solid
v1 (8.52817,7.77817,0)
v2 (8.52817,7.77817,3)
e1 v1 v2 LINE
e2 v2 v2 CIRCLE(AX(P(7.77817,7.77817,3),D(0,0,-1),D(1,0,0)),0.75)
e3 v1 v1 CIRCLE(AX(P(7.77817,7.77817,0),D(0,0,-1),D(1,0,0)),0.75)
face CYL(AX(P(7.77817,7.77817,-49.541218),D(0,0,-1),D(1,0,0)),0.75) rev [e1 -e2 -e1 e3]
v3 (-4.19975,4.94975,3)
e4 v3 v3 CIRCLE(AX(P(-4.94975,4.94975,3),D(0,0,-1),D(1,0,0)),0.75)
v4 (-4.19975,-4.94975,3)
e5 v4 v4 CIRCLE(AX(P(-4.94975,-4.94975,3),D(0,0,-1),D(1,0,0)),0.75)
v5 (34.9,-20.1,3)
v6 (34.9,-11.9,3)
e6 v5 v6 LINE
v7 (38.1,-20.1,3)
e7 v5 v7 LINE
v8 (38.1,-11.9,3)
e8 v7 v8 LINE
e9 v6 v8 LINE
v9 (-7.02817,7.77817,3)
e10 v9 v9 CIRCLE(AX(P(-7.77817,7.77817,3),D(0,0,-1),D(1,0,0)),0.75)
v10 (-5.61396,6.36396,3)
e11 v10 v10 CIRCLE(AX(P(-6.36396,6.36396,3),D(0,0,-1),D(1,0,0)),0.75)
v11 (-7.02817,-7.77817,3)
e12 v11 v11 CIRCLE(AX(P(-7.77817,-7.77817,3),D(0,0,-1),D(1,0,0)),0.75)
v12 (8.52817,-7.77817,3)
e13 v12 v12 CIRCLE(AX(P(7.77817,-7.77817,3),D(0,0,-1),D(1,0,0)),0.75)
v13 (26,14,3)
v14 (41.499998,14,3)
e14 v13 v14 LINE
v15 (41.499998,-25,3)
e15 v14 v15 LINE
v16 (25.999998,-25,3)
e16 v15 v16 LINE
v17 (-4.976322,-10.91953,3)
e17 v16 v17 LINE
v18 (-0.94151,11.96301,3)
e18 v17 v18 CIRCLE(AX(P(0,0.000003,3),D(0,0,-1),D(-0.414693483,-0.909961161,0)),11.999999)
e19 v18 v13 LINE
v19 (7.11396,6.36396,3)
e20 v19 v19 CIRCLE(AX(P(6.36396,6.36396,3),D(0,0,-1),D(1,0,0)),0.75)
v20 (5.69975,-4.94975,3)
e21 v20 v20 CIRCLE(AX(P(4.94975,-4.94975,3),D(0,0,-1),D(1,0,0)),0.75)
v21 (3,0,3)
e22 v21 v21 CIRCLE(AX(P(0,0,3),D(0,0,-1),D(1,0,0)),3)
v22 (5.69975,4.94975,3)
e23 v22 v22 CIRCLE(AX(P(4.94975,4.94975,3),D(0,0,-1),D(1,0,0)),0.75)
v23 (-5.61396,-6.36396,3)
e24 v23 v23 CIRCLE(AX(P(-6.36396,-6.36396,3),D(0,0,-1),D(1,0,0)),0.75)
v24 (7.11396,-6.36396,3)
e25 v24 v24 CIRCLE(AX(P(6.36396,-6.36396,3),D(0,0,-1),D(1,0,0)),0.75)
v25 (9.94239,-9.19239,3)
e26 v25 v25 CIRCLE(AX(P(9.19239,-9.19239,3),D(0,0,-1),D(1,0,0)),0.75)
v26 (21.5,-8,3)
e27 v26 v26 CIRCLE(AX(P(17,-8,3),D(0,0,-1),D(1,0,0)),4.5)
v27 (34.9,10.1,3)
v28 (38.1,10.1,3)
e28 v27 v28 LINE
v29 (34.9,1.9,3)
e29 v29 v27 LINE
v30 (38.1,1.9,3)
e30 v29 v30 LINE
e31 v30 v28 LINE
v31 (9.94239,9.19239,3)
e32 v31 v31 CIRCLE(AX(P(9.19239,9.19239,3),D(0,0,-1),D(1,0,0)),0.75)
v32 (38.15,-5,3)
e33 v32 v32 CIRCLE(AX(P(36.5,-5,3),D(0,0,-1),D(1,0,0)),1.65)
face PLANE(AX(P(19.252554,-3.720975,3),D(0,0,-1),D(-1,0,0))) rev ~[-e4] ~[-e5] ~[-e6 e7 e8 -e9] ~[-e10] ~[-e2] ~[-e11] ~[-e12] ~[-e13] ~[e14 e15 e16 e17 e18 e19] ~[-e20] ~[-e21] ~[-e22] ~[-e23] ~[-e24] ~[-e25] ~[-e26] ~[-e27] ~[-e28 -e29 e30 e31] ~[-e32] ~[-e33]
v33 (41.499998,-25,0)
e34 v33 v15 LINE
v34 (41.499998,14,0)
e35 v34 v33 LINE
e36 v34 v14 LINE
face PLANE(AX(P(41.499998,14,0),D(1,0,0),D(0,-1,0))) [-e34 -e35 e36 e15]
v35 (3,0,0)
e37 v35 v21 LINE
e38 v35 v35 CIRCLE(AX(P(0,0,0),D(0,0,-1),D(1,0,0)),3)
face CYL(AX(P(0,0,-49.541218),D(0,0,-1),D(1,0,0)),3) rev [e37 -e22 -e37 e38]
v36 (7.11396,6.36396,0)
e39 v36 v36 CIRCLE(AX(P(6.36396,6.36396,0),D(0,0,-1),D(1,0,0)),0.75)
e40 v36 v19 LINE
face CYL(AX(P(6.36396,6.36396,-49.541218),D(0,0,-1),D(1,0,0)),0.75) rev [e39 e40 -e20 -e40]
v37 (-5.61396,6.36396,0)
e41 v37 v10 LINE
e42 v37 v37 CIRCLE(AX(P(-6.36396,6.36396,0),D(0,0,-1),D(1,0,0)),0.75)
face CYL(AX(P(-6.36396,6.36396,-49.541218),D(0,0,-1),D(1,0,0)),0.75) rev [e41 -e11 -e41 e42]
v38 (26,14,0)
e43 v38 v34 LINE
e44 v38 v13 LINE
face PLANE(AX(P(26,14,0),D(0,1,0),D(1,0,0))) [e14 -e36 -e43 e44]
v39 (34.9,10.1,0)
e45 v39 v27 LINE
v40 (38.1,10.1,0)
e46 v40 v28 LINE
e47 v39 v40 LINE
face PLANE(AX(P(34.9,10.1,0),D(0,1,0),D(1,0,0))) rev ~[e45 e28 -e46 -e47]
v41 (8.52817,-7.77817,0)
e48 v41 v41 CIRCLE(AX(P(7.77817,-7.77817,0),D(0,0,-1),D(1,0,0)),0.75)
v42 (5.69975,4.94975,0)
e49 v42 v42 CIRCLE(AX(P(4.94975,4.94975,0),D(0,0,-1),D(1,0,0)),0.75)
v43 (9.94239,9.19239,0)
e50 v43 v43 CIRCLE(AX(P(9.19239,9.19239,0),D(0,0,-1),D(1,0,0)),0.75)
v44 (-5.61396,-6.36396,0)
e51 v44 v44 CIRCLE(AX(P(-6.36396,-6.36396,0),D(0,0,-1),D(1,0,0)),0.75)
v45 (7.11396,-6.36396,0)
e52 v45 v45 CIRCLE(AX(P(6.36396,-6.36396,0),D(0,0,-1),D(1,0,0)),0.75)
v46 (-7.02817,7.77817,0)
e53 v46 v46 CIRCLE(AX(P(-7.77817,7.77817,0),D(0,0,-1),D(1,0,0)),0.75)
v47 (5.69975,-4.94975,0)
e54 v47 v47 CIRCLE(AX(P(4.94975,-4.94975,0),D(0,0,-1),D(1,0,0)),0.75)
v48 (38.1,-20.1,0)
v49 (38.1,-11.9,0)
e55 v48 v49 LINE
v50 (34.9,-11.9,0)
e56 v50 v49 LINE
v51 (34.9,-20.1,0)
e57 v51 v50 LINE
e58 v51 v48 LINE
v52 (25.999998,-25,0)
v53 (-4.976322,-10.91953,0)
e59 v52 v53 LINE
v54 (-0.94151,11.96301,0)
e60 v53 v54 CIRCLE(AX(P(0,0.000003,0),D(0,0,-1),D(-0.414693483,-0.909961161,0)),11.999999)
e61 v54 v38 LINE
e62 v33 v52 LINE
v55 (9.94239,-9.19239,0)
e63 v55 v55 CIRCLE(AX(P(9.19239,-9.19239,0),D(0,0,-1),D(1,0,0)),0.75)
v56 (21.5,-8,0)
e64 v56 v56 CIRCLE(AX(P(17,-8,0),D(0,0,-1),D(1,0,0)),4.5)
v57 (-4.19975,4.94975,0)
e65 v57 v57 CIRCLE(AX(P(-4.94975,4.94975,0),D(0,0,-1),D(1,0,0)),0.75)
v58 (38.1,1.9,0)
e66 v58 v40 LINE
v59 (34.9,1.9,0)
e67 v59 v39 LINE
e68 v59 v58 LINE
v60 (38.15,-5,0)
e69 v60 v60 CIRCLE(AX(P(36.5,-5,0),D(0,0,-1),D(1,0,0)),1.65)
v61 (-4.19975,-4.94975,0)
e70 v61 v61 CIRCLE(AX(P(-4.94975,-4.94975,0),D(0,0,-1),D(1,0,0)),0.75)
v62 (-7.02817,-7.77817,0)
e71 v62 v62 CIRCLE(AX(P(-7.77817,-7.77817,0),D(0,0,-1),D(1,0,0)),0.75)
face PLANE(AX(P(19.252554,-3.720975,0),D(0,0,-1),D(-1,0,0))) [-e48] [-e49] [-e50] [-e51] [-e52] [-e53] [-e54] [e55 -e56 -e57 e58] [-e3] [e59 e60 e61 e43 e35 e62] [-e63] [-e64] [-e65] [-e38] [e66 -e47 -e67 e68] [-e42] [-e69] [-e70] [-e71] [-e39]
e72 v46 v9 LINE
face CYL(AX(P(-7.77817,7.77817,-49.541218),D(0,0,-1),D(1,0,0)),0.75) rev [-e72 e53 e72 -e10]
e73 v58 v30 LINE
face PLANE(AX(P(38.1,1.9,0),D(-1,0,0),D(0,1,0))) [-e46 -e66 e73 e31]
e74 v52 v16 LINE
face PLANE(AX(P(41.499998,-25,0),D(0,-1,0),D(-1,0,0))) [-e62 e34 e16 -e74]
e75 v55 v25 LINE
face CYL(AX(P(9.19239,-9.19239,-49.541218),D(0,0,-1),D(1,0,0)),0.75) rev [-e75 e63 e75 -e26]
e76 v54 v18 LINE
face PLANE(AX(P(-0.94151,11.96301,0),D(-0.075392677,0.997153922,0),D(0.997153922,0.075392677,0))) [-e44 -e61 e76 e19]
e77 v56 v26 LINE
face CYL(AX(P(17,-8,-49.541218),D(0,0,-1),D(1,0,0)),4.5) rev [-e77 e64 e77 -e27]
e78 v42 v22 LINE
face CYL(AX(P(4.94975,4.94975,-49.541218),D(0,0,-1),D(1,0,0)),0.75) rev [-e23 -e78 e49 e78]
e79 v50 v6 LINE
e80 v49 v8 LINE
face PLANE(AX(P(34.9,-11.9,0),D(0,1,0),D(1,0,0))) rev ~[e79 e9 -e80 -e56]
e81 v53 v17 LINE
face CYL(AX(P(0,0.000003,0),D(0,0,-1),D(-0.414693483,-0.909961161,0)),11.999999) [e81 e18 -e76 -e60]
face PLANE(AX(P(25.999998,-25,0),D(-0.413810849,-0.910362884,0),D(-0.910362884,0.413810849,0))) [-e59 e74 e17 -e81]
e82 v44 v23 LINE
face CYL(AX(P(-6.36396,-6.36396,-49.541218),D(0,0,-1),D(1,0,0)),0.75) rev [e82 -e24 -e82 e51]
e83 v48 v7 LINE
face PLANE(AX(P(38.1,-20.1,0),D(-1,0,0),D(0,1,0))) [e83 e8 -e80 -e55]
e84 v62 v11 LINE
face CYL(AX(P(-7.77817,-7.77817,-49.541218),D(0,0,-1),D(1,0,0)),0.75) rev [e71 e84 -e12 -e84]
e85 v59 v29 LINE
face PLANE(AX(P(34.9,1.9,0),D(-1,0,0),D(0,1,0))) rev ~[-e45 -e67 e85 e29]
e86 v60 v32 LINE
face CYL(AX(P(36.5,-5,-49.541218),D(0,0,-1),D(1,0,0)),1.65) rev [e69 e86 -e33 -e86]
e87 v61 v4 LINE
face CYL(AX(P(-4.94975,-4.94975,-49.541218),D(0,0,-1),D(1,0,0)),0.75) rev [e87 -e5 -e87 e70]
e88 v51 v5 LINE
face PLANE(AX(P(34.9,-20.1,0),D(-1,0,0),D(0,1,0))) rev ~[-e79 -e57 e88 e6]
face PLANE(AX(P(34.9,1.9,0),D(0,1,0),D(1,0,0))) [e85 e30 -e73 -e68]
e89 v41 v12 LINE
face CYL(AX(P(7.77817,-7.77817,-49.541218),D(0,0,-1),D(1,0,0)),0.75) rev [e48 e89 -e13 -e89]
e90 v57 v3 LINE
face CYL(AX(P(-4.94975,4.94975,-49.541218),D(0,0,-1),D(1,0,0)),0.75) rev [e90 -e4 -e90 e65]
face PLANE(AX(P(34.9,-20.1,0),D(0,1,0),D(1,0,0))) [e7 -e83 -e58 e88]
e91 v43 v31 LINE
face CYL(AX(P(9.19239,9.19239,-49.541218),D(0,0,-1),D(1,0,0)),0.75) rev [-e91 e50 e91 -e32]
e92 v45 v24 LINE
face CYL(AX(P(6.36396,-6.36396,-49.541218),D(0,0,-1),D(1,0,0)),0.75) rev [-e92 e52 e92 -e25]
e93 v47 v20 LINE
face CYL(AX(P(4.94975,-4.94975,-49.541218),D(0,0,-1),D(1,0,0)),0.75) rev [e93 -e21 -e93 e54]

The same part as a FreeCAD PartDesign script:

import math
import FreeCAD as App
import Part
import Sketcher

V = App.Vector

doc = App.newDocument("Part")
params = doc.addObject("Spreadsheet::Sheet", "Params")
for row, (alias, value) in enumerate([
    ("sketch1_radius", "11.999999 mm"),
    ("sketch1_height", "39 mm"),
    ("sketch1_width", "15.5 mm"),
    ("sketch1_width2", "3.2 mm"),
    ("sketch1_height2", "8.2 mm"),
    ("pad1_length", "3 mm"),
    ("sketch2_diameter", "9 mm"),
    ("sketch2_diameter2", "6 mm"),
    ("sketch2_diameter3", "1.5 mm"),
    ("sketch2_diameter4", "3.3 mm"),
], start=1):
    params.set(f"A{row}", alias)
    params.set(f"B{row}", "=" + value)
    params.setAlias(f"B{row}", alias)

body = doc.addObject("PartDesign::Body", "Body")

# Sketch on XY plane
sketch1 = body.newObject("Sketcher::SketchObject", "Sketch")
sketch1.AttachmentSupport = (doc.getObject("XY_Plane"), [""])
sketch1.MapMode = "FlatFace"
sketch1.addGeometry([
    Part.LineSegment(V(25.999998, -25, 0), V(41.499998, -25, 0)),  # 0
    Part.LineSegment(V(41.499998, -25, 0), V(41.499998, 14, 0)),  # 1
    Part.LineSegment(V(41.499998, 14, 0), V(26, 14, 0)),  # 2
    Part.LineSegment(V(26, 14, 0), V(-0.94151, 11.96301, 0)),  # 3
    Part.ArcOfCircle(Part.Circle(V(0, 0.000003, 0), V(0, 0, 1), 11.999999), math.radians(94.500003), math.radians(245.499985)),  # 4
    Part.LineSegment(V(-4.976322, -10.91953, 0), V(25.999998, -25, 0)),  # 5
    Part.LineSegment(V(34.9, -20.1, 0), V(34.9, -11.9, 0)),  # 6
    Part.LineSegment(V(34.9, -11.9, 0), V(38.1, -11.9, 0)),  # 7
    Part.LineSegment(V(38.1, -11.9, 0), V(38.1, -20.1, 0)),  # 8
    Part.LineSegment(V(38.1, -20.1, 0), V(34.9, -20.1, 0)),  # 9
    Part.LineSegment(V(34.9, 1.9, 0), V(34.9, 10.1, 0)),  # 10
    Part.LineSegment(V(34.9, 10.1, 0), V(38.1, 10.1, 0)),  # 11
    Part.LineSegment(V(38.1, 10.1, 0), V(38.1, 1.9, 0)),  # 12
    Part.LineSegment(V(38.1, 1.9, 0), V(34.9, 1.9, 0)),  # 13
], False)
sketch1.addConstraint([
    Sketcher.Constraint("Coincident", 0, 2, 1, 1),
    Sketcher.Constraint("Coincident", 1, 2, 2, 1),
    Sketcher.Constraint("Coincident", 2, 2, 3, 1),
    Sketcher.Constraint("Coincident", 3, 2, 4, 1),
    Sketcher.Constraint("Coincident", 4, 2, 5, 1),
    Sketcher.Constraint("Coincident", 5, 2, 0, 1),
    Sketcher.Constraint("Coincident", 6, 2, 7, 1),
    Sketcher.Constraint("Coincident", 7, 2, 8, 1),
    Sketcher.Constraint("Coincident", 8, 2, 9, 1),
    Sketcher.Constraint("Coincident", 9, 2, 6, 1),
    Sketcher.Constraint("Coincident", 10, 2, 11, 1),
    Sketcher.Constraint("Coincident", 11, 2, 12, 1),
    Sketcher.Constraint("Coincident", 12, 2, 13, 1),
    Sketcher.Constraint("Coincident", 13, 2, 10, 1),
    Sketcher.Constraint("Horizontal", 0),
    Sketcher.Constraint("Vertical", 1),
    Sketcher.Constraint("Horizontal", 2),
    Sketcher.Constraint("Vertical", 6),
    Sketcher.Constraint("Horizontal", 7),
    Sketcher.Constraint("Vertical", 8),
    Sketcher.Constraint("Horizontal", 9),
    Sketcher.Constraint("Vertical", 10),
    Sketcher.Constraint("Horizontal", 11),
    Sketcher.Constraint("Vertical", 12),
    Sketcher.Constraint("Horizontal", 13),
    Sketcher.Constraint("Coincident", 4, 3, -1, 1),
    Sketcher.Constraint("Vertical", 2, 2, 5, 2),
    Sketcher.Constraint("Vertical", 9, 2, 10, 2),
    Sketcher.Constraint("Vertical", 8, 2, 11, 2),
    Sketcher.Constraint("Equal", 8, 10),
    Sketcher.Constraint("Radius", 4, 11.999999),
    Sketcher.Constraint("DistanceY", 1, 1, 1, 2, 39.0),
    Sketcher.Constraint("DistanceX", 0, 1, 0, 2, 15.5),
    Sketcher.Constraint("DistanceX", 7, 1, 7, 2, 3.2),
    Sketcher.Constraint("DistanceY", 6, 1, 6, 2, 8.2),
    Sketcher.Constraint("DistanceY", 0, 2, -1, 1, 25.0),
    Sketcher.Constraint("DistanceX", -1, 1, 2, 2, 26.0),
    Sketcher.Constraint("DistanceY", 6, 2, 10, 2, 22.0),
    Sketcher.Constraint("DistanceX", -1, 1, 6, 2, 34.9),
    Sketcher.Constraint("DistanceY", 6, 2, -1, 1, 11.9),
    Sketcher.Constraint("DistanceX", 3, 2, -1, 1, 0.94151),
    Sketcher.Constraint("DistanceX", 4, 2, -1, 1, 4.976322),
])
sketch1.setExpression("Constraints[30]", "Params.sketch1_radius")
sketch1.setExpression("Constraints[31]", "Params.sketch1_height")
sketch1.setExpression("Constraints[32]", "Params.sketch1_width")
sketch1.setExpression("Constraints[33]", "Params.sketch1_width2")
sketch1.setExpression("Constraints[34]", "Params.sketch1_height2")
pad1 = body.newObject("PartDesign::Pad", "Pad")
pad1.Profile = sketch1
pad1.setExpression("Length", "Params.pad1_length")

# Sketch on XY plane
sketch2 = body.newObject("Sketcher::SketchObject", "Sketch001")
sketch2.AttachmentSupport = (doc.getObject("XY_Plane"), [""])
sketch2.MapMode = "FlatFace"
sketch2.addGeometry([
    Part.Circle(V(-7.77817, -7.77817, 0), V(0, 0, 1), 0.75),  # 0
    Part.Circle(V(-6.36396, -6.36396, 0), V(0, 0, 1), 0.75),  # 1
    Part.Circle(V(9.19239, -9.19239, 0), V(0, 0, 1), 0.75),  # 2
    Part.Circle(V(7.77817, -7.77817, 0), V(0, 0, 1), 0.75),  # 3
    Part.Circle(V(6.36396, -6.36396, 0), V(0, 0, 1), 0.75),  # 4
    Part.Circle(V(17, -8, 0), V(0, 0, 1), 4.5),  # 5
    Part.Circle(V(-4.94975, -4.94975, 0), V(0, 0, 1), 0.75),  # 6
    Part.Circle(V(0, 0, 0), V(0, 0, 1), 3),  # 7
    Part.Circle(V(4.94975, -4.94975, 0), V(0, 0, 1), 0.75),  # 8
    Part.Circle(V(-4.94975, 4.94975, 0), V(0, 0, 1), 0.75),  # 9
    Part.Circle(V(-6.36396, 6.36396, 0), V(0, 0, 1), 0.75),  # 10
    Part.Circle(V(-7.77817, 7.77817, 0), V(0, 0, 1), 0.75),  # 11
    Part.Circle(V(4.94975, 4.94975, 0), V(0, 0, 1), 0.75),  # 12
    Part.Circle(V(6.36396, 6.36396, 0), V(0, 0, 1), 0.75),  # 13
    Part.Circle(V(7.77817, 7.77817, 0), V(0, 0, 1), 0.75),  # 14
    Part.Circle(V(9.19239, 9.19239, 0), V(0, 0, 1), 0.75),  # 15
    Part.Circle(V(36.5, -5, 0), V(0, 0, 1), 1.65),  # 16
], False)
sketch2.addConstraint([
    Sketcher.Constraint("Coincident", 7, 3, -1, 1),
    Sketcher.Constraint("Equal", 0, 1),
    Sketcher.Constraint("Equal", 1, 2),
    Sketcher.Constraint("Equal", 2, 3),
    Sketcher.Constraint("Equal", 3, 4),
    Sketcher.Constraint("Equal", 4, 6),
    Sketcher.Constraint("Equal", 6, 8),
    Sketcher.Constraint("Equal", 8, 9),
    Sketcher.Constraint("Equal", 9, 10),
    Sketcher.Constraint("Equal", 10, 11),
    Sketcher.Constraint("Equal", 11, 12),
    Sketcher.Constraint("Equal", 12, 13),
    Sketcher.Constraint("Equal", 13, 14),
    Sketcher.Constraint("Equal", 14, 15),
    Sketcher.Constraint("Symmetric", 8, 3, 9, 3, -1, 1),
    Sketcher.Constraint("Symmetric", 4, 3, 10, 3, -1, 1),
    Sketcher.Constraint("Symmetric", 3, 3, 11, 3, -1, 1),
    Sketcher.Constraint("Symmetric", 6, 3, 12, 3, -1, 1),
    Sketcher.Constraint("Symmetric", 1, 3, 13, 3, -1, 1),
    Sketcher.Constraint("Symmetric", 0, 3, 14, 3, -1, 1),
    Sketcher.Constraint("Symmetric", 0, 3, 3, 3, -2),
    Sketcher.Constraint("Symmetric", 1, 3, 4, 3, -2),
    Sketcher.Constraint("Symmetric", 6, 3, 8, 3, -2),
    Sketcher.Constraint("Symmetric", 2, 3, 15, 3, -1),
    Sketcher.Constraint("Diameter", 5, 9.0),
    Sketcher.Constraint("Diameter", 7, 6.0),
    Sketcher.Constraint("Diameter", 0, 1.5),
    Sketcher.Constraint("Diameter", 16, 3.3),
    Sketcher.Constraint("DistanceX", -1, 1, 5, 3, 17.0),
    Sketcher.Constraint("DistanceY", 5, 3, -1, 1, 8.0),
    Sketcher.Constraint("DistanceY", 16, 3, -1, 1, 5.0),
    Sketcher.Constraint("DistanceX", -1, 1, 16, 3, 36.5),
    Sketcher.Constraint("DistanceX", 6, 3, 8, 3, 9.8995),
    Sketcher.Constraint("DistanceY", 6, 3, 9, 3, 9.8995),
    Sketcher.Constraint("DistanceX", 0, 3, -1, 1, 7.77817),
    Sketcher.Constraint("DistanceY", 0, 3, -1, 1, 7.77817),
    Sketcher.Constraint("DistanceX", 1, 3, -1, 1, 6.36396),
    Sketcher.Constraint("DistanceY", 1, 3, -1, 1, 6.36396),
    Sketcher.Constraint("DistanceX", -1, 1, 2, 3, 9.19239),
    Sketcher.Constraint("DistanceY", 2, 3, -1, 1, 9.19239),
])
sketch2.setExpression("Constraints[24]", "Params.sketch2_diameter")
sketch2.setExpression("Constraints[25]", "Params.sketch2_diameter2")
sketch2.setExpression("Constraints[26]", "Params.sketch2_diameter3")
sketch2.setExpression("Constraints[27]", "Params.sketch2_diameter4")
pocket1 = body.newObject("PartDesign::Pocket", "Pocket")
pocket1.Profile = sketch2
pocket1.Type = "ThroughAll"
pocket1.Midplane = True

doc.recompute()
